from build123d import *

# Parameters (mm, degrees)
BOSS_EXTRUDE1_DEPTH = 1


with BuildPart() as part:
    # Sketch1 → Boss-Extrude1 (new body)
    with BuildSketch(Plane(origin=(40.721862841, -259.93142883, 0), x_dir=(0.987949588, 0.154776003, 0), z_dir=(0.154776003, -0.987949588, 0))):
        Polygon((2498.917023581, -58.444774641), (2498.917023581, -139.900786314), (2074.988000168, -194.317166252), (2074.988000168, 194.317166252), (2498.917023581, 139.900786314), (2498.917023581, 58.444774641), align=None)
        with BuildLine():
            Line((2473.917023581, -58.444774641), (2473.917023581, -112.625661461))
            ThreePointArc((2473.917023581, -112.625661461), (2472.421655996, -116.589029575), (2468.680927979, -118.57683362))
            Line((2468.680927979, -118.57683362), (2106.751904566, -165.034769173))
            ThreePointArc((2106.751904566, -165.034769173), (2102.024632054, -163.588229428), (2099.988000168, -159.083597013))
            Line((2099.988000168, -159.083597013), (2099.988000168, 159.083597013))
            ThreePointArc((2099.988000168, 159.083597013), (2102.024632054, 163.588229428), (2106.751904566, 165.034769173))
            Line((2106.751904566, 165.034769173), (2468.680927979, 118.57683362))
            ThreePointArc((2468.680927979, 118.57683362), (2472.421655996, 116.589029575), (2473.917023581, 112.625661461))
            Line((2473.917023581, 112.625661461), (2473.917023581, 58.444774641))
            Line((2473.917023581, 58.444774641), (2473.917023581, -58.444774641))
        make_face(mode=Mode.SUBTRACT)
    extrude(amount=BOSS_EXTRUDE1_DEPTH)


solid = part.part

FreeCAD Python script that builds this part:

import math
import FreeCAD as App
import Part
import Sketcher
from FreeCAD import Vector
Q = App.Units.Quantity


def add_polygon(sketch, points):
    """Adds a closed chain of lines whose ends are joined by coincident constraints."""
    first, n = sketch.GeometryCount, len(points)
    for a, b in zip(points, points[1:] + points[:1]):
        sketch.addGeometry(Part.LineSegment(App.Vector(*a, 0), App.Vector(*b, 0)), False)
    for i in range(n):
        sketch.addConstraint(Sketcher.Constraint("Coincident", first + i, 2, first + (i + 1) % n, 1))

doc = App.newDocument("Part")
body = doc.addObject("PartDesign::Body", "Body")

# Sketch on an angled plane
sketch1 = doc.addObject("Sketcher::SketchObject", "Sketch")
body.addObject(sketch1)
sketch1.Placement = App.Placement(Vector(40.721863, -259.931429, 0), App.Rotation(Vector(0.987949588, 0.154776003, 0), Vector(0, 0, 1), Vector(0.154776003, -0.987949588, 0), "ZXY"))
add_polygon(sketch1, [(2498.917022, -139.900786), (2498.917022, 139.900786), (2074.987999, 194.317166), (2074.987999, -194.317166)])  # lines 0-3
sketch1.addGeometry(Part.ArcOfCircle(Part.Circle(Vector(2467.917022, -112.625661, 0), Vector(0, 0, 1), 6), math.radians(-82.685398), math.radians(0)), False)  # 4
sketch1.addGeometry(Part.LineSegment(Vector(2468.680927, -118.576834, 0), Vector(2106.751904, -165.034769, 0)), False)  # 5
sketch1.addGeometry(Part.ArcOfCircle(Part.Circle(Vector(2105.987999, -159.083597, 0), Vector(0, 0, 1), 6), math.radians(180), math.radians(277.314602)), False)  # 6
sketch1.addGeometry(Part.LineSegment(Vector(2099.987999, -159.083597, 0), Vector(2099.987999, 159.083597, 0)), False)  # 7
sketch1.addGeometry(Part.ArcOfCircle(Part.Circle(Vector(2105.987999, 159.083597, 0), Vector(0, 0, 1), 6), math.radians(82.685398), math.radians(180)), False)  # 8
sketch1.addGeometry(Part.LineSegment(Vector(2106.751904, 165.034769, 0), Vector(2468.680927, 118.576834, 0)), False)  # 9
sketch1.addGeometry(Part.ArcOfCircle(Part.Circle(Vector(2467.917022, 112.625661, 0), Vector(0, 0, 1), 6), math.radians(0), math.radians(82.685398)), False)  # 10
sketch1.addGeometry(Part.LineSegment(Vector(2473.917022, 112.625661, 0), Vector(2473.917022, -112.625661, 0)), False)  # 11
sketch1.addConstraint(Sketcher.Constraint("Tangent", 4, 1, 5, 1))
sketch1.addConstraint(Sketcher.Constraint("Tangent", 5, 2, 6, 2))
sketch1.addConstraint(Sketcher.Constraint("Tangent", 6, 1, 7, 1))
sketch1.addConstraint(Sketcher.Constraint("Tangent", 7, 2, 8, 2))
sketch1.addConstraint(Sketcher.Constraint("Tangent", 8, 1, 9, 1))
sketch1.addConstraint(Sketcher.Constraint("Tangent", 9, 2, 10, 2))
sketch1.addConstraint(Sketcher.Constraint("Tangent", 10, 1, 11, 1))
sketch1.addConstraint(Sketcher.Constraint("Tangent", 11, 2, 4, 2))
sketch1.addConstraint(Sketcher.Constraint("Vertical", 0))
sketch1.addConstraint(Sketcher.Constraint("Vertical", 2))
sketch1.addConstraint(Sketcher.Constraint("Vertical", 7))
sketch1.addConstraint(Sketcher.Constraint("Vertical", 11))
sketch1.addConstraint(Sketcher.Constraint("Equal", 4, 6))
sketch1.addConstraint(Sketcher.Constraint("Equal", 6, 8))
sketch1.addConstraint(Sketcher.Constraint("Equal", 8, 10))
sketch1.addConstraint(Sketcher.Constraint("Symmetric", 5, 2, 8, 1, -1))
sketch1.addConstraint(Sketcher.Constraint("Parallel", 3, 5))
sketch1.addConstraint(Sketcher.Constraint("Parallel", 1, 9))
sketch1.addConstraint(Sketcher.Constraint("Radius", 4, Q("6 mm")))
sketch1.addConstraint(Sketcher.Constraint("DistanceX", 10, 3, 0, 2, Q("31 mm")))
sketch1.addConstraint(Sketcher.Constraint("DistanceX", 1, 2, 8, 3, Q("31 mm")))
sketch1.addConstraint(Sketcher.Constraint("DistanceX", -1, 1, 6, 3, Q("2105.987999 mm")))
sketch1.addConstraint(Sketcher.Constraint("Distance", 5, Q("364.898558 mm")))
sketch1.addConstraint(Sketcher.Constraint("DistanceY", 0, 1, 0, 2, Q("279.801572 mm")))
sketch1.addConstraint(Sketcher.Constraint("DistanceY", 2, 2, 2, 1, Q("388.634332 mm")))
sketch1.addConstraint(Sketcher.Constraint("DistanceY", 7, 1, 7, 2, Q("318.167194 mm")))
sketch1.addConstraint(Sketcher.Constraint("DistanceY", 0, 2, 8, 3, Q("19.182811 mm")))
pad1 = doc.addObject("PartDesign::Pad", "Pad")
body.addObject(pad1)
pad1.Profile = sketch1
pad1.Length = 1

doc.recompute()
